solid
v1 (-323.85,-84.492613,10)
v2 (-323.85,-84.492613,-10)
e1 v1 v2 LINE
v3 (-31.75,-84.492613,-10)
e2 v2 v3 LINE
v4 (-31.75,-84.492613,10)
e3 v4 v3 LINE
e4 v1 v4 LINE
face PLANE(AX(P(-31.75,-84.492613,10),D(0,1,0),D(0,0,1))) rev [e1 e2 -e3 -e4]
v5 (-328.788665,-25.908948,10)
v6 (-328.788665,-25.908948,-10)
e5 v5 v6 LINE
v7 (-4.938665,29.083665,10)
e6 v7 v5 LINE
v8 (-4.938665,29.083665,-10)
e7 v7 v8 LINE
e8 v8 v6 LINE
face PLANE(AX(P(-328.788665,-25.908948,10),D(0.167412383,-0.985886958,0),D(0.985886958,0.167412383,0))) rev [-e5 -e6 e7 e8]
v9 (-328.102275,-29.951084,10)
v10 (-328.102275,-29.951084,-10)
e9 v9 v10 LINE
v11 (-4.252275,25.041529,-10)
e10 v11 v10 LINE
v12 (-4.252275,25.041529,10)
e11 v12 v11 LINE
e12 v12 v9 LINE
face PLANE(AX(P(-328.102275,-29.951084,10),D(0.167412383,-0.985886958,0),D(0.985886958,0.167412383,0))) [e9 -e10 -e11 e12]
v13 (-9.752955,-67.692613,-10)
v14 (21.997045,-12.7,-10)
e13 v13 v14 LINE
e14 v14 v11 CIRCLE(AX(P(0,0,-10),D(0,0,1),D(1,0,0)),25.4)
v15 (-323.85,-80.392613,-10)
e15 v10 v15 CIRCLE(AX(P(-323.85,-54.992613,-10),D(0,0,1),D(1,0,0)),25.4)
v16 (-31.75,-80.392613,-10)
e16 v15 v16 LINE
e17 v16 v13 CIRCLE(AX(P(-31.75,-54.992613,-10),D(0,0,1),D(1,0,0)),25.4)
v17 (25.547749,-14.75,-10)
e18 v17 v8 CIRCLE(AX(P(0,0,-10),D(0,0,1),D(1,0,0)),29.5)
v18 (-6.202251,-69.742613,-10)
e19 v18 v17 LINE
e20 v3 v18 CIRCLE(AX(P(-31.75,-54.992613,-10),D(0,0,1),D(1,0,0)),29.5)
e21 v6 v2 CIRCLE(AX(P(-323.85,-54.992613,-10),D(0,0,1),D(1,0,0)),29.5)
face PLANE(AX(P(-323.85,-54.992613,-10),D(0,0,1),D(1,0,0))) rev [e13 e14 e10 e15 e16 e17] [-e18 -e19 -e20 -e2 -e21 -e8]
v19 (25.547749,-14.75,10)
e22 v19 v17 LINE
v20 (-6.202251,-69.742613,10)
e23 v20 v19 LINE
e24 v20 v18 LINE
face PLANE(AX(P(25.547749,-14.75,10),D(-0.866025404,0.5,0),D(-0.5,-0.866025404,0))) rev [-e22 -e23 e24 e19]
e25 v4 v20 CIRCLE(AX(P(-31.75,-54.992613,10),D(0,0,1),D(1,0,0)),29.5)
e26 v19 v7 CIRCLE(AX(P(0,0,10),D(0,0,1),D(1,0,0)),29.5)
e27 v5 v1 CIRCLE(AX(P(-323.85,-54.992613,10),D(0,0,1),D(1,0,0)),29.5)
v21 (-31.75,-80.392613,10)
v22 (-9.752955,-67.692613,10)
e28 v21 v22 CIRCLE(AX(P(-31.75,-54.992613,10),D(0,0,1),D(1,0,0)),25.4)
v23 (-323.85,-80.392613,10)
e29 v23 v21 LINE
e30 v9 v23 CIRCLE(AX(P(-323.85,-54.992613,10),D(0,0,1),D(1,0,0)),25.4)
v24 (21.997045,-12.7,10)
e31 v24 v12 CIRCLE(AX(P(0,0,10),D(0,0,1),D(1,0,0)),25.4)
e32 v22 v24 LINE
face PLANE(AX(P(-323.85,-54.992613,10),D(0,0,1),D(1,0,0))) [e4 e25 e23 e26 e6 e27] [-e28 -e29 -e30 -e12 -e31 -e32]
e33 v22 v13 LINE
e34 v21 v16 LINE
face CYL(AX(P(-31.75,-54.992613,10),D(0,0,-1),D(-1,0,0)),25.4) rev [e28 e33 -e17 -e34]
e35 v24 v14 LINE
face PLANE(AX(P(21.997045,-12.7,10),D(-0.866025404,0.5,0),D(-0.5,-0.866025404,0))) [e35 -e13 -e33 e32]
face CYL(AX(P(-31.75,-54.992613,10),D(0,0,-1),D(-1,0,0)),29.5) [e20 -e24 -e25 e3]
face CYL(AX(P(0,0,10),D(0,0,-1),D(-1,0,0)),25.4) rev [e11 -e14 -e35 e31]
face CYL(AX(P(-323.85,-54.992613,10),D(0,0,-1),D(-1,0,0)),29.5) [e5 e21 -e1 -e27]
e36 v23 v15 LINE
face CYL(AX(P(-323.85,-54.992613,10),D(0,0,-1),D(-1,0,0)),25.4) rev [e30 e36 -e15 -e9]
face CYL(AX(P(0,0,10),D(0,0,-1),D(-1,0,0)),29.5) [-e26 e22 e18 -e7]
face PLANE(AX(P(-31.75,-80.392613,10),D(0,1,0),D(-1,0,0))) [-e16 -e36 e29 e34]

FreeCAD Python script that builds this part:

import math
import FreeCAD as App
import Part
import Sketcher
from FreeCAD import Vector
Q = App.Units.Quantity

doc = App.newDocument("Part")
body = doc.addObject("PartDesign::Body", "Body")

# Sketch on XY plane
sketch1 = body.newObject("Sketcher::SketchObject", "Sketch")
sketch1.AttachmentSupport = (doc.getObject("XY_Plane"), [""])
sketch1.MapMode = "FlatFace"
sketch1.addGeometry([
    Part.LineSegment(Vector(-4.938665, 29.083665, 0), Vector(-328.788665, -25.908948, 0)),  # 0
    Part.ArcOfCircle(Part.Circle(Vector(-323.85, -54.992613, 0), Vector(0, 0, 1), 29.5), math.radians(99.637403), math.radians(270)),  # 1
    Part.LineSegment(Vector(-323.85, -84.492613, 0), Vector(-31.75, -84.492613, 0)),  # 2
    Part.ArcOfCircle(Part.Circle(Vector(-31.75, -54.992613, 0), Vector(0, 0, 1), 29.5), math.radians(-90), math.radians(-30)),  # 3
    Part.LineSegment(Vector(-6.202251, -69.742613, 0), Vector(25.547749, -14.75, 0)),  # 4
    Part.ArcOfCircle(Part.Circle(Vector(0, 0, 0), Vector(0, 0, 1), 29.5), math.radians(-30), math.radians(99.637403)),  # 5
    Part.LineSegment(Vector(-328.102275, -29.951084, 0), Vector(-4.252275, 25.041529, 0)),  # 6
    Part.ArcOfCircle(Part.Circle(Vector(0, 0, 0), Vector(0, 0, 1), 25.4), math.radians(-30), math.radians(99.637403)),  # 7
    Part.LineSegment(Vector(21.997045, -12.7, 0), Vector(-9.752955, -67.692613, 0)),  # 8
    Part.ArcOfCircle(Part.Circle(Vector(-31.75, -54.992613, 0), Vector(0, 0, 1), 25.4), math.radians(-90), math.radians(-30)),  # 9
    Part.LineSegment(Vector(-31.75, -80.392613, 0), Vector(-323.85, -80.392613, 0)),  # 10
    Part.ArcOfCircle(Part.Circle(Vector(-323.85, -54.992613, 0), Vector(0, 0, 1), 25.4), math.radians(99.637403), math.radians(270)),  # 11
], False)
sketch1.addConstraint([
    Sketcher.Constraint("Tangent", 0, 2, 1, 1),
    Sketcher.Constraint("Tangent", 1, 2, 2, 1),
    Sketcher.Constraint("Tangent", 2, 2, 3, 1),
    Sketcher.Constraint("Tangent", 3, 2, 4, 1),
    Sketcher.Constraint("Tangent", 4, 2, 5, 1),
    Sketcher.Constraint("Tangent", 5, 2, 0, 1),
    Sketcher.Constraint("Tangent", 6, 2, 7, 2),
    Sketcher.Constraint("Tangent", 7, 1, 8, 1),
    Sketcher.Constraint("Tangent", 8, 2, 9, 2),
    Sketcher.Constraint("Tangent", 9, 1, 10, 1),
    Sketcher.Constraint("Tangent", 10, 2, 11, 2),
    Sketcher.Constraint("Tangent", 11, 1, 6, 1),
    Sketcher.Constraint("Horizontal", 2),
    Sketcher.Constraint("Horizontal", 10),
    Sketcher.Constraint("Coincident", 5, 3, -1, 1),
    Sketcher.Constraint("Coincident", 7, 3, -1, 1),
    Sketcher.Constraint("Coincident", 9, 3, 3, 3),
    Sketcher.Constraint("Coincident", 11, 3, 1, 3),
    Sketcher.Constraint("Equal", 1, 3),
    Sketcher.Constraint("Equal", 3, 5),
    Sketcher.Constraint("Equal", 7, 9),
    Sketcher.Constraint("Radius", 7, Q("1 in")),
    Sketcher.Constraint("DistanceX", 2, 1, 2, 2, Q("11.5 in")),
    Sketcher.Constraint("Angle", 4, Q("60 deg")),
    Sketcher.Constraint("Distance", 4, Q("2.5 in")),
    Sketcher.Constraint("Radius", 1, 29.5),
])
pad1 = body.newObject("PartDesign::Pad", "Pad")
pad1.Profile = sketch1
pad1.Length = 20
pad1.Midplane = True

doc.recompute()
